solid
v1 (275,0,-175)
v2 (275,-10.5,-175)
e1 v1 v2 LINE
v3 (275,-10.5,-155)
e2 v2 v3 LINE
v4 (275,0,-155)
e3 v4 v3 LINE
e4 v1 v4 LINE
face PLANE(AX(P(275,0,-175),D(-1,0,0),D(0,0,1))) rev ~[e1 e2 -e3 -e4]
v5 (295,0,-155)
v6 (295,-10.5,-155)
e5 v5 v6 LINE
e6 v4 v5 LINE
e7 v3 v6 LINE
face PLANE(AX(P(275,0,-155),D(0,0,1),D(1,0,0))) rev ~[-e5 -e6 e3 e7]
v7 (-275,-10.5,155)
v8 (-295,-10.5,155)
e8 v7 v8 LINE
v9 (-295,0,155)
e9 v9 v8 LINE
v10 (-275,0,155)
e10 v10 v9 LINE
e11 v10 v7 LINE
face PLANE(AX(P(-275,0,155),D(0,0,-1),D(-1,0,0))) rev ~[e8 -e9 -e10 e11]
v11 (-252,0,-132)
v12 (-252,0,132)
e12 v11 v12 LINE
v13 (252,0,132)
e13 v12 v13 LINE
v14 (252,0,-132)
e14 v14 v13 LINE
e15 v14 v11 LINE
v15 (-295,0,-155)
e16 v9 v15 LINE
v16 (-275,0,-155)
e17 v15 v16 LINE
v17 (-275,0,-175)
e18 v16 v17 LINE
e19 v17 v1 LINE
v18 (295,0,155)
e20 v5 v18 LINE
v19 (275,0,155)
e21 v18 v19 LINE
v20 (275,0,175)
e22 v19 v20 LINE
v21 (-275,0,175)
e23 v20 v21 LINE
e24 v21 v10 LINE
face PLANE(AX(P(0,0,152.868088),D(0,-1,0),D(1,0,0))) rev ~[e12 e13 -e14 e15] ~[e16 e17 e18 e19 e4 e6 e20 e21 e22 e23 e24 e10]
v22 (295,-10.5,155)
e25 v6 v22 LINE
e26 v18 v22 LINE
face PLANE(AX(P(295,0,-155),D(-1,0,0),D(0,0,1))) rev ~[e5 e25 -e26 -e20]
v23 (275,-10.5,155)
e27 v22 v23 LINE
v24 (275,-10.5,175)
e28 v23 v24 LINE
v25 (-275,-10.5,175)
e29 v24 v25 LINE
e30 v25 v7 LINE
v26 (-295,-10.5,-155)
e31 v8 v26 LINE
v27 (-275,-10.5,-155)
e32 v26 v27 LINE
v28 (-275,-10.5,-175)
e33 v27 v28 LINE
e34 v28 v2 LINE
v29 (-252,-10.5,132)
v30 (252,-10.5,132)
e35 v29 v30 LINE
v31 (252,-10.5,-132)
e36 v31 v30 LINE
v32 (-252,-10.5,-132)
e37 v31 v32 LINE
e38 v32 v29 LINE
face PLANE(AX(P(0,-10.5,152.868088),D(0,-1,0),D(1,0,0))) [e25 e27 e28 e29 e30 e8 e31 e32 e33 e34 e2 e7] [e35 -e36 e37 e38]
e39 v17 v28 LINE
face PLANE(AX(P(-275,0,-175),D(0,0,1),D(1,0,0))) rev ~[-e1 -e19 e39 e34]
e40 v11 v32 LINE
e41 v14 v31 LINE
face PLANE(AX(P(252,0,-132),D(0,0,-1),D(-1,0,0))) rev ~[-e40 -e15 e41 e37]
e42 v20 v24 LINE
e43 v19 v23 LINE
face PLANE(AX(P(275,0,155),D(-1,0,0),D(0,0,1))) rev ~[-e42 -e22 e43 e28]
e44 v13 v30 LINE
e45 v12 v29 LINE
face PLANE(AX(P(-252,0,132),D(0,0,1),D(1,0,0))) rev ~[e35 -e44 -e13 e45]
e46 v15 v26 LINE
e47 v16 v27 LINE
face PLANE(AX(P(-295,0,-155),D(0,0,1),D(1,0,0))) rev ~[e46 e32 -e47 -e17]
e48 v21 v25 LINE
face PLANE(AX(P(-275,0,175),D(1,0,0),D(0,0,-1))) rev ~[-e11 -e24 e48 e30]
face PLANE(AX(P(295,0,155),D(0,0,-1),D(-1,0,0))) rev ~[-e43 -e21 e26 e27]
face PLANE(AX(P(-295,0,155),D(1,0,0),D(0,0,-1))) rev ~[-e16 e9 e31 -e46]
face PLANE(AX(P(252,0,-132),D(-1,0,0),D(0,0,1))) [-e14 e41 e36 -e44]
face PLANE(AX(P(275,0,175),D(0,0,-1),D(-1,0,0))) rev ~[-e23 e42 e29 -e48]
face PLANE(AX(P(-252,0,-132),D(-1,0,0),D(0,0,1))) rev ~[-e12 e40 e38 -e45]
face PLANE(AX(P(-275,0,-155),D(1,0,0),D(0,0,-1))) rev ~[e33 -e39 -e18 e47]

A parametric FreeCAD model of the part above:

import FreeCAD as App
import Part
import Sketcher
from FreeCAD import Vector

doc = App.newDocument("Part")
body = doc.addObject("PartDesign::Body", "Body")

# Sketch on XZ plane
sketch1 = body.newObject("Sketcher::SketchObject", "Sketch")
sketch1.AttachmentSupport = (doc.getObject("XZ_Plane"), [""])
sketch1.MapMode = "FlatFace"
sketch1.addGeometry(Part.LineSegment(Vector(275, 155, 0), Vector(275, 175, 0)), False)
sketch1.addGeometry(Part.LineSegment(Vector(275, 175, 0), Vector(-275, 175, 0)), False)
sketch1.addGeometry(Part.LineSegment(Vector(-275, 175, 0), Vector(-275, 155, 0)), False)
sketch1.addGeometry(Part.LineSegment(Vector(-275, 155, 0), Vector(-295, 155, 0)), False)
sketch1.addGeometry(Part.LineSegment(Vector(-295, 155, 0), Vector(-295, -155, 0)), False)
sketch1.addGeometry(Part.LineSegment(Vector(-295, -155, 0), Vector(-275, -155, 0)), False)
sketch1.addGeometry(Part.LineSegment(Vector(-275, -155, 0), Vector(-275, -175, 0)), False)
sketch1.addGeometry(Part.LineSegment(Vector(-275, -175, 0), Vector(275, -175, 0)), False)
sketch1.addGeometry(Part.LineSegment(Vector(275, -175, 0), Vector(275, -155, 0)), False)
sketch1.addGeometry(Part.LineSegment(Vector(275, -155, 0), Vector(295, -155, 0)), False)
sketch1.addGeometry(Part.LineSegment(Vector(295, -155, 0), Vector(295, 155, 0)), False)
sketch1.addGeometry(Part.LineSegment(Vector(295, 155, 0), Vector(275, 155, 0)), False)
sketch1.addGeometry(Part.LineSegment(Vector(-252, -132, 0), Vector(-252, 132, 0)), False)
sketch1.addGeometry(Part.LineSegment(Vector(-252, 132, 0), Vector(252, 132, 0)), False)
sketch1.addGeometry(Part.LineSegment(Vector(252, 132, 0), Vector(252, -132, 0)), False)
sketch1.addGeometry(Part.LineSegment(Vector(252, -132, 0), Vector(-252, -132, 0)), False)
sketch1.addConstraint(Sketcher.Constraint("Coincident", 0, 2, 1, 1))
sketch1.addConstraint(Sketcher.Constraint("Coincident", 1, 2, 2, 1))
sketch1.addConstraint(Sketcher.Constraint("Coincident", 2, 2, 3, 1))
sketch1.addConstraint(Sketcher.Constraint("Coincident", 3, 2, 4, 1))
sketch1.addConstraint(Sketcher.Constraint("Coincident", 4, 2, 5, 1))
sketch1.addConstraint(Sketcher.Constraint("Coincident", 5, 2, 6, 1))
sketch1.addConstraint(Sketcher.Constraint("Coincident", 6, 2, 7, 1))
sketch1.addConstraint(Sketcher.Constraint("Coincident", 7, 2, 8, 1))
sketch1.addConstraint(Sketcher.Constraint("Coincident", 8, 2, 9, 1))
sketch1.addConstraint(Sketcher.Constraint("Coincident", 9, 2, 10, 1))
sketch1.addConstraint(Sketcher.Constraint("Coincident", 10, 2, 11, 1))
sketch1.addConstraint(Sketcher.Constraint("Coincident", 11, 2, 0, 1))
sketch1.addConstraint(Sketcher.Constraint("Coincident", 12, 2, 13, 1))
sketch1.addConstraint(Sketcher.Constraint("Coincident", 13, 2, 14, 1))
sketch1.addConstraint(Sketcher.Constraint("Coincident", 14, 2, 15, 1))
sketch1.addConstraint(Sketcher.Constraint("Coincident", 15, 2, 12, 1))
sketch1.addConstraint(Sketcher.Constraint("Vertical", 0))
sketch1.addConstraint(Sketcher.Constraint("Horizontal", 1))
sketch1.addConstraint(Sketcher.Constraint("Vertical", 2))
sketch1.addConstraint(Sketcher.Constraint("Horizontal", 3))
sketch1.addConstraint(Sketcher.Constraint("Vertical", 4))
sketch1.addConstraint(Sketcher.Constraint("Horizontal", 5))
sketch1.addConstraint(Sketcher.Constraint("Vertical", 6))
sketch1.addConstraint(Sketcher.Constraint("Horizontal", 7))
sketch1.addConstraint(Sketcher.Constraint("Vertical", 8))
sketch1.addConstraint(Sketcher.Constraint("Horizontal", 9))
sketch1.addConstraint(Sketcher.Constraint("Vertical", 10))
sketch1.addConstraint(Sketcher.Constraint("Horizontal", 11))
sketch1.addConstraint(Sketcher.Constraint("Vertical", 12))
sketch1.addConstraint(Sketcher.Constraint("Horizontal", 13))
sketch1.addConstraint(Sketcher.Constraint("Vertical", 14))
sketch1.addConstraint(Sketcher.Constraint("Horizontal", 15))
sketch1.addConstraint(Sketcher.Constraint("Symmetric", 0, 2, 6, 2, -1, 1))
sketch1.addConstraint(Sketcher.Constraint("Symmetric", 2, 2, 8, 2, -1, 1))
sketch1.addConstraint(Sketcher.Constraint("Symmetric", 4, 2, 10, 2, -1, 1))
sketch1.addConstraint(Sketcher.Constraint("Symmetric", 12, 2, 14, 2, -1, 1))
sketch1.addConstraint(Sketcher.Constraint("Symmetric", 5, 2, 8, 2, -2))
sketch1.addConstraint(Sketcher.Constraint("Equal", 11, 0))
sketch1.addConstraint(Sketcher.Constraint("DistanceX", 1, 2, 1, 1, 550.0))
sketch1.addConstraint(Sketcher.Constraint("DistanceX", 3, 2, 3, 1, 20.0))
sketch1.addConstraint(Sketcher.Constraint("DistanceX", 13, 1, 13, 2, 504.0))
sketch1.addConstraint(Sketcher.Constraint("DistanceY", 4, 2, 4, 1, 310.0))
sketch1.addConstraint(Sketcher.Constraint("DistanceY", 12, 1, 12, 2, 264.0))
pad1 = body.newObject("PartDesign::Pad", "Pad")
pad1.Profile = sketch1
pad1.Length = 10.5

doc.recompute()
